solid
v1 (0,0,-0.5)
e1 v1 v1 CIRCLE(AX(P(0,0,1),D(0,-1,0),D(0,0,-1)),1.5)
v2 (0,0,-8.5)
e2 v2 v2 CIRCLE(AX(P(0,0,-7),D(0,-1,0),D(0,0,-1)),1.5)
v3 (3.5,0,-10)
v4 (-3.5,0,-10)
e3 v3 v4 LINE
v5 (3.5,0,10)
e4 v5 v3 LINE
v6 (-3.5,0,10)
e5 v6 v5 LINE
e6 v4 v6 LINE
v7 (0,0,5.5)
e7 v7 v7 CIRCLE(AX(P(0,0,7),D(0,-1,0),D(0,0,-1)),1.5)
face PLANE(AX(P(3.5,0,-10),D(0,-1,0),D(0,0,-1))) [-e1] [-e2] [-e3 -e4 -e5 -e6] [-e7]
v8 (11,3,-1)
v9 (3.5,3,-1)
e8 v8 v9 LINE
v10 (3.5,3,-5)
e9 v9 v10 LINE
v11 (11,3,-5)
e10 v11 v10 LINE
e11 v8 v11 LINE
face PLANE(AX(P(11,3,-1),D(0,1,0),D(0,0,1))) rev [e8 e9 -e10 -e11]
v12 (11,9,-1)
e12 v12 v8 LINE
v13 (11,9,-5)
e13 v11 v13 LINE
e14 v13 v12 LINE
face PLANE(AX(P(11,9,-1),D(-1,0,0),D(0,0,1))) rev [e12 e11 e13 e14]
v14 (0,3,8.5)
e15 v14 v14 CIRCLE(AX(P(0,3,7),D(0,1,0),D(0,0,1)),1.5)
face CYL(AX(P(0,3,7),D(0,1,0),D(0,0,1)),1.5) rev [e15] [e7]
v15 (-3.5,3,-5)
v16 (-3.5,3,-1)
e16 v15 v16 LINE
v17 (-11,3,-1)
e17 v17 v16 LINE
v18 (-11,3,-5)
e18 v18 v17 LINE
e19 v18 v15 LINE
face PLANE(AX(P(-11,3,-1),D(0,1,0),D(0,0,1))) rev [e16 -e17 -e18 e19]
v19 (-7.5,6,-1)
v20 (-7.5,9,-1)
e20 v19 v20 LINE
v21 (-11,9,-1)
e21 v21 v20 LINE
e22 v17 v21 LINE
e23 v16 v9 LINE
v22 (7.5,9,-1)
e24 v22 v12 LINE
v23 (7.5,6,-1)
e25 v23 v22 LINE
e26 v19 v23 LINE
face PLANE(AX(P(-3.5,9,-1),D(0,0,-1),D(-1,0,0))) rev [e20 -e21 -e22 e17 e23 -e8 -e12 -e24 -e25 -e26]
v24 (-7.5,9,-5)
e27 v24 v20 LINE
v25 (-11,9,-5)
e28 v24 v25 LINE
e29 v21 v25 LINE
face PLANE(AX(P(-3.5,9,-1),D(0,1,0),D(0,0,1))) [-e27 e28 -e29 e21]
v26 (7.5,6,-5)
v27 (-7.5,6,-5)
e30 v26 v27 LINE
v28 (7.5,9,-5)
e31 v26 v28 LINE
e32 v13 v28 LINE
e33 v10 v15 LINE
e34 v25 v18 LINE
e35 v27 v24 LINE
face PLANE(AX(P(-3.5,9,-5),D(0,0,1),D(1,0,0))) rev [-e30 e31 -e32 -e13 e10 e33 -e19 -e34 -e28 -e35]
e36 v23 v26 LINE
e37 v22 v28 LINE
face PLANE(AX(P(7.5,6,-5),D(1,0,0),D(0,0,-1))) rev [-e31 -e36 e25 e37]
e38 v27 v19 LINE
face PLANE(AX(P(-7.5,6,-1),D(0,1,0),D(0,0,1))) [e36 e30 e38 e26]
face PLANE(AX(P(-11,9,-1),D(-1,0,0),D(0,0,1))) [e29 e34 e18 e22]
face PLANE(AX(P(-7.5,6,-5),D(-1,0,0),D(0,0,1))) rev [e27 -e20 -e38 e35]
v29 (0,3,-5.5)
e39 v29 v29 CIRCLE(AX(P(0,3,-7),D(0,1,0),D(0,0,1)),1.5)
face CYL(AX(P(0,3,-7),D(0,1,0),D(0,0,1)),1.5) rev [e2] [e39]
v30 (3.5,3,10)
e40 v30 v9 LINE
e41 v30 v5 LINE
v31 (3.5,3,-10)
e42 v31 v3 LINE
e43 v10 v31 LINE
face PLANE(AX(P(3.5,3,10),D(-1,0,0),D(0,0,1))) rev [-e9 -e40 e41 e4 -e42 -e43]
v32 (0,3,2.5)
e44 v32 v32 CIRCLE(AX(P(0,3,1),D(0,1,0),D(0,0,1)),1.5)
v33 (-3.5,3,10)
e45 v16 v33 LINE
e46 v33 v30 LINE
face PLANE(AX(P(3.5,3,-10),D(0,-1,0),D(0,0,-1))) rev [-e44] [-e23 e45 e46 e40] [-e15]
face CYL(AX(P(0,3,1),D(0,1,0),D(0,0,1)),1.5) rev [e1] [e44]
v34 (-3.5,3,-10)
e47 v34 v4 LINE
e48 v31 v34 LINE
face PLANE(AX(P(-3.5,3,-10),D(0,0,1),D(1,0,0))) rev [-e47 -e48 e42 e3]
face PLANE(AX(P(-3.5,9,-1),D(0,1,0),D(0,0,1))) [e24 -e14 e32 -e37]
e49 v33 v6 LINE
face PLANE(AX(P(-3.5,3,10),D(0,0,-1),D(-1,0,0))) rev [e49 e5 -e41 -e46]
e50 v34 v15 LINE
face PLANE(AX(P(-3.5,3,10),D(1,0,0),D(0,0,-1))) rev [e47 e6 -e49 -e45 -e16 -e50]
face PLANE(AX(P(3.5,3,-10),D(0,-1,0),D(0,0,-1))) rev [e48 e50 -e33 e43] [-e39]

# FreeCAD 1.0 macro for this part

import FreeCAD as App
import Part
import Sketcher

doc = App.newDocument("Part")
body = doc.addObject("PartDesign::Body", "Body")

sketch1 = body.newObject("Sketcher::SketchObject", "Sketch")
sketch1.AttachmentSupport = (doc.getObject("XZ_Plane"), [""])
sketch1.MapMode = "FlatFace"
sketch1.addGeometry([
    Part.LineSegment(App.Vector(-4, -10, 0), App.Vector(-4, 10, 0)),
    Part.LineSegment(App.Vector(-4, 10, 0), App.Vector(4, 10, 0)),
    Part.LineSegment(App.Vector(4, 10, 0), App.Vector(4, -10, 0)),
    Part.LineSegment(App.Vector(4, -10, 0), App.Vector(-4, -10, 0)),
], False)
sketch1.addConstraint([
    Sketcher.Constraint("Coincident", 0, 2, 1, 1),
    Sketcher.Constraint("Coincident", 1, 2, 2, 1),
    Sketcher.Constraint("Coincident", 2, 2, 3, 1),
    Sketcher.Constraint("Coincident", 3, 2, 0, 1),
    Sketcher.Constraint("Vertical", 0),
    Sketcher.Constraint("Horizontal", 1),
    Sketcher.Constraint("Vertical", 2),
    Sketcher.Constraint("Horizontal", 3),
    Sketcher.Constraint("Symmetric", 0, 2, 2, 2, -1, 1),
    Sketcher.Constraint("DistanceX", 1, 1, 1, 2, 7.0),
    Sketcher.Constraint("DistanceY", 0, 1, 0, 2, 20.0),
])
pad1 = body.newObject("PartDesign::Pad", "Pad")
pad1.Profile = sketch1
pad1.Length = 3
pad1.Reversed = True

sketch2 = body.newObject("Sketcher::SketchObject", "Sketch001")
sketch2.AttachmentSupport = (doc.getObject("XZ_Plane"), [""])
sketch2.MapMode = "FlatFace"
sketch2.AttachmentOffset = App.Placement(App.Vector(0, 0, -3), App.Rotation())
sketch2.addGeometry([
    Part.Circle(App.Vector(0, 7, 0), App.Vector(0, 0, 1), 1.5),
    Part.Circle(App.Vector(0, 1, 0), App.Vector(0, 0, 1), 1.5),
    Part.Circle(App.Vector(0, -7, 0), App.Vector(0, 0, 1), 1.5),
], False)
sketch2.addConstraint([
    Sketcher.Constraint("Equal", 0, 1),
    Sketcher.Constraint("Equal", 1, 2),
    Sketcher.Constraint("Symmetric", 0, 3, 2, 3, -1, 1),
    Sketcher.Constraint("PointOnObject", 0, 3, -2),
    Sketcher.Constraint("PointOnObject", 1, 3, -2),
    Sketcher.Constraint("Diameter", 0, 3.0),
    Sketcher.Constraint("DistanceY", -1, 1, 0, 3, 7.0),
    Sketcher.Constraint("DistanceY", -1, 1, 1, 3, 1.0),
])
doc.recompute()
hole = body.newObject("PartDesign::Hole", "Hole")
hole.Profile = sketch2
hole.ThreadType = "None"
hole.Diameter = 3
hole.DepthType = "Dimension"
hole.Depth = 10
hole.DrillPoint = "Angled"
hole.DrillPointAngle = 118
hole.Reversed = True

sketch3 = body.newObject("Sketcher::SketchObject", "Sketch002")
sketch3.AttachmentSupport = (doc.getObject("XZ_Plane"), [""])
sketch3.MapMode = "FlatFace"
sketch3.AttachmentOffset = App.Placement(App.Vector(0, 0, -3), App.Rotation())
sketch3.addGeometry([
    Part.LineSegment(App.Vector(-3.5, -5, 0), App.Vector(-3.5, -1, 0)),
    Part.LineSegment(App.Vector(-3.5, -1, 0), App.Vector(3.5, -1, 0)),
    Part.LineSegment(App.Vector(3.5, -1, 0), App.Vector(3.5, -5, 0)),
    Part.LineSegment(App.Vector(3.5, -5, 0), App.Vector(-3.5, -5, 0)),
], False)
sketch3.addConstraint([
    Sketcher.Constraint("Coincident", 0, 2, 1, 1),
    Sketcher.Constraint("Coincident", 1, 2, 2, 1),
    Sketcher.Constraint("Coincident", 2, 2, 3, 1),
    Sketcher.Constraint("Coincident", 3, 2, 0, 1),
    Sketcher.Constraint("Vertical", 0),
    Sketcher.Constraint("Horizontal", 1),
    Sketcher.Constraint("Vertical", 2),
    Sketcher.Constraint("Horizontal", 3),
    Sketcher.Constraint("DistanceX", 1, 1, 1, 2, 7.0),
    Sketcher.Constraint("DistanceY", 0, 1, 0, 2, 4.0),
    Sketcher.Constraint("DistanceY", 0, 2, -1, 1, 1.0),
    Sketcher.Constraint("DistanceX", 0, 2, -1, 1, 3.5),
])
pad2 = body.newObject("PartDesign::Pad", "Pad001")
pad2.Profile = sketch3
pad2.Length = 6
pad2.Reversed = True

sketch4 = body.newObject("Sketcher::SketchObject", "Sketch003")
sketch4.AttachmentSupport = (doc.getObject("YZ_Plane"), [""])
sketch4.MapMode = "FlatFace"
sketch4.AttachmentOffset = App.Placement(App.Vector(0, 0, 3.5), App.Rotation())
sketch4.addGeometry([
    Part.LineSegment(App.Vector(9, -1, 0), App.Vector(3, -1, 0)),
    Part.LineSegment(App.Vector(3, -1, 0), App.Vector(3, -5, 0)),
    Part.LineSegment(App.Vector(3, -5, 0), App.Vector(9, -5, 0)),
    Part.LineSegment(App.Vector(9, -5, 0), App.Vector(9, -1, 0)),
], False)
sketch4.addConstraint([
    Sketcher.Constraint("Coincident", 0, 2, 1, 1),
    Sketcher.Constraint("Coincident", 1, 2, 2, 1),
    Sketcher.Constraint("Coincident", 2, 2, 3, 1),
    Sketcher.Constraint("Coincident", 3, 2, 0, 1),
    Sketcher.Constraint("Horizontal", 0),
    Sketcher.Constraint("Vertical", 1),
    Sketcher.Constraint("Horizontal", 2),
    Sketcher.Constraint("Vertical", 3),
    Sketcher.Constraint("DistanceX", 0, 2, 0, 1, 6.0),
    Sketcher.Constraint("DistanceY", 1, 2, 1, 1, 4.0),
    Sketcher.Constraint("DistanceX", -1, 1, 0, 2, 3.0),
    Sketcher.Constraint("DistanceY", 0, 2, -1, 1, 1.0),
])
pad3 = body.newObject("PartDesign::Pad", "Pad002")
pad3.Profile = sketch4
pad3.Length = 7.5

sketch5 = body.newObject("Sketcher::SketchObject", "Sketch004")
sketch5.AttachmentSupport = (doc.getObject("YZ_Plane"), [""])
sketch5.MapMode = "FlatFace"
sketch5.AttachmentOffset = App.Placement(App.Vector(0, 0, -3.5), App.Rotation())
sketch5.addGeometry([
    Part.LineSegment(App.Vector(9, -5, 0), App.Vector(3, -5, 0)),
    Part.LineSegment(App.Vector(3, -5, 0), App.Vector(3, -1, 0)),
    Part.LineSegment(App.Vector(3, -1, 0), App.Vector(9, -1, 0)),
    Part.LineSegment(App.Vector(9, -1, 0), App.Vector(9, -5, 0)),
], False)
sketch5.addConstraint([
    Sketcher.Constraint("Coincident", 0, 2, 1, 1),
    Sketcher.Constraint("Coincident", 1, 2, 2, 1),
    Sketcher.Constraint("Coincident", 2, 2, 3, 1),
    Sketcher.Constraint("Coincident", 3, 2, 0, 1),
    Sketcher.Constraint("Horizontal", 0),
    Sketcher.Constraint("Vertical", 1),
    Sketcher.Constraint("Horizontal", 2),
    Sketcher.Constraint("Vertical", 3),
    Sketcher.Constraint("DistanceX", 0, 2, 0, 1, 6.0),
    Sketcher.Constraint("DistanceY", 1, 1, 1, 2, 4.0),
    Sketcher.Constraint("DistanceX", -1, 1, 0, 2, 3.0),
    Sketcher.Constraint("DistanceY", 0, 2, -1, 1, 5.0),
])
pad4 = body.newObject("PartDesign::Pad", "Pad003")
pad4.Profile = sketch5
pad4.Length = 7.5
pad4.Reversed = True

sketch6 = body.newObject("Sketcher::SketchObject", "Sketch005")
sketch6.AttachmentSupport = (doc.getObject("XZ_Plane"), [""])
sketch6.MapMode = "FlatFace"
sketch6.AttachmentOffset = App.Placement(App.Vector(0, 0, -9), App.Rotation())
sketch6.addGeometry([
    Part.LineSegment(App.Vector(7.5, -1, 0), App.Vector(7.5, -5, 0)),
    Part.LineSegment(App.Vector(7.5, -5, 0), App.Vector(-7.5, -5, 0)),
    Part.LineSegment(App.Vector(-7.5, -5, 0), App.Vector(-7.5, -1, 0)),
    Part.LineSegment(App.Vector(-7.5, -1, 0), App.Vector(7.5, -1, 0)),
], False)
sketch6.addConstraint([
    Sketcher.Constraint("Coincident", 0, 2, 1, 1),
    Sketcher.Constraint("Coincident", 1, 2, 2, 1),
    Sketcher.Constraint("Coincident", 2, 2, 3, 1),
    Sketcher.Constraint("Coincident", 3, 2, 0, 1),
    Sketcher.Constraint("Vertical", 0),
    Sketcher.Constraint("Horizontal", 1),
    Sketcher.Constraint("Vertical", 2),
    Sketcher.Constraint("Horizontal", 3),
    Sketcher.Constraint("DistanceX", 1, 2, 1, 1, 15.0),
    Sketcher.Constraint("DistanceY", 0, 2, 0, 1, 4.0),
    Sketcher.Constraint("DistanceY", 0, 2, -1, 1, 5.0),
    Sketcher.Constraint("DistanceX", -1, 1, 0, 2, 7.5),
])
pocket1 = body.newObject("PartDesign::Pocket", "Pocket")
pocket1.Profile = sketch6
pocket1.Length = 3
pocket1.Reversed = True

doc.recompute()
